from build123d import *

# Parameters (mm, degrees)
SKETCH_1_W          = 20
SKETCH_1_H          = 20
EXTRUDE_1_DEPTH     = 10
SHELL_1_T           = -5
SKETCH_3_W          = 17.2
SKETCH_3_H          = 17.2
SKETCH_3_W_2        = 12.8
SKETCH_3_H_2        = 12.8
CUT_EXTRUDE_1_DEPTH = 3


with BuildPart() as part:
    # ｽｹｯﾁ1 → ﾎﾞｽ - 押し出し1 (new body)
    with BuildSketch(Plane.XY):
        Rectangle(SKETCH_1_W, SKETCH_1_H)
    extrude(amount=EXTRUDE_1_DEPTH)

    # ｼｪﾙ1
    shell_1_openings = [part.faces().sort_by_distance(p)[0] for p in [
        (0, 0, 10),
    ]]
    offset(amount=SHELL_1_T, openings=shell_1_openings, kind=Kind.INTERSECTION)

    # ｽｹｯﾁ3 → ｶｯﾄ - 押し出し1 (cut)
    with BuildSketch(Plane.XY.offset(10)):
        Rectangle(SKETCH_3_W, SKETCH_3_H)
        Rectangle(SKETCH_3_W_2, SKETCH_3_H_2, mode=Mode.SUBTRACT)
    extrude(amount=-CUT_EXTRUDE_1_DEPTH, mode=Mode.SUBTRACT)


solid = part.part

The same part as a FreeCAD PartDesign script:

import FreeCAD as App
import Part
import Sketcher
Q = App.Units.Quantity


def faces_at(feature, points):
    """Names of the faces that lie closest to the given points."""
    faces = feature.Shape.Faces
    near = lambda p: min(range(len(faces)), key=lambda i: faces[i].distToShape(Part.Vertex(*p))[0])
    return sorted({f"Face{near(p) + 1}" for p in points})


def add_polygon(sketch, points):
    """Adds a closed chain of lines whose ends are joined by coincident constraints."""
    first, n = sketch.GeometryCount, len(points)
    for a, b in zip(points, points[1:] + points[:1]):
        sketch.addGeometry(Part.LineSegment(App.Vector(*a, 0), App.Vector(*b, 0)), False)
    for i in range(n):
        sketch.addConstraint(Sketcher.Constraint("Coincident", first + i, 2, first + (i + 1) % n, 1))

doc = App.newDocument("Part")
body = doc.addObject("PartDesign::Body", "Body")

sketch1 = body.newObject("Sketcher::SketchObject", "Sketch")
sketch1.AttachmentSupport = (doc.getObject("XY_Plane"), [""])
sketch1.MapMode = "FlatFace"
add_polygon(sketch1, [(-10, 10), (-10, -10), (10, -10), (10, 10)])
sketch1.addConstraint(Sketcher.Constraint("Vertical", 0))
sketch1.addConstraint(Sketcher.Constraint("Horizontal", 1))
sketch1.addConstraint(Sketcher.Constraint("Vertical", 2))
sketch1.addConstraint(Sketcher.Constraint("Horizontal", 3))
sketch1.addConstraint(Sketcher.Constraint("Symmetric", 0, 2, 2, 2, -1, 1))
sketch1.addConstraint(Sketcher.Constraint("Equal", 3, 0))
sketch1.addConstraint(Sketcher.Constraint("DistanceX", 1, 1, 1, 2, Q("20 mm")))
pad1 = body.newObject("PartDesign::Pad", "Pad")
pad1.Profile = sketch1
pad1.Length = 10
doc.recompute()

thickness = body.newObject("PartDesign::Thickness", "Thickness")
thickness.Base = (pad1, faces_at(pad1, [(0, 0, 10)]))
thickness.Value = 5
thickness.Reversed = True
thickness.Join = "Intersection"

sketch2 = body.newObject("Sketcher::SketchObject", "Sketch001")
sketch2.AttachmentSupport = (doc.getObject("XY_Plane"), [""])
sketch2.MapMode = "FlatFace"
sketch2.AttachmentOffset = App.Placement(App.Vector(0, 0, 10), App.Rotation())
add_polygon(sketch2, [(-9, 9), (-9, -9), (9, -9), (9, 9)])
add_polygon(sketch2, [(6, -6), (-6, -6), (-6, 6), (6, 6)])
sketch2.addConstraint(Sketcher.Constraint("Vertical", 0))
sketch2.addConstraint(Sketcher.Constraint("Horizontal", 1))
sketch2.addConstraint(Sketcher.Constraint("Vertical", 2))
sketch2.addConstraint(Sketcher.Constraint("Horizontal", 3))
sketch2.addConstraint(Sketcher.Constraint("Horizontal", 4))
sketch2.addConstraint(Sketcher.Constraint("Vertical", 5))
sketch2.addConstraint(Sketcher.Constraint("Horizontal", 6))
sketch2.addConstraint(Sketcher.Constraint("Vertical", 7))
sketch2.addConstraint(Sketcher.Constraint("Symmetric", 0, 2, 2, 2, -1, 1))
sketch2.addConstraint(Sketcher.Constraint("Symmetric", 4, 2, 6, 2, -1, 1))
sketch2.addConstraint(Sketcher.Constraint("Equal", 3, 0))
sketch2.addConstraint(Sketcher.Constraint("Equal", 6, 5))
sketch2.addConstraint(Sketcher.Constraint("DistanceX", 1, 1, 1, 2, Q("17.2 mm")))
sketch2.addConstraint(Sketcher.Constraint("DistanceX", 4, 2, 4, 1, Q("12.8 mm")))
pocket1 = body.newObject("PartDesign::Pocket", "Pocket")
pocket1.Profile = sketch2
pocket1.Length = 3

doc.recompute()
